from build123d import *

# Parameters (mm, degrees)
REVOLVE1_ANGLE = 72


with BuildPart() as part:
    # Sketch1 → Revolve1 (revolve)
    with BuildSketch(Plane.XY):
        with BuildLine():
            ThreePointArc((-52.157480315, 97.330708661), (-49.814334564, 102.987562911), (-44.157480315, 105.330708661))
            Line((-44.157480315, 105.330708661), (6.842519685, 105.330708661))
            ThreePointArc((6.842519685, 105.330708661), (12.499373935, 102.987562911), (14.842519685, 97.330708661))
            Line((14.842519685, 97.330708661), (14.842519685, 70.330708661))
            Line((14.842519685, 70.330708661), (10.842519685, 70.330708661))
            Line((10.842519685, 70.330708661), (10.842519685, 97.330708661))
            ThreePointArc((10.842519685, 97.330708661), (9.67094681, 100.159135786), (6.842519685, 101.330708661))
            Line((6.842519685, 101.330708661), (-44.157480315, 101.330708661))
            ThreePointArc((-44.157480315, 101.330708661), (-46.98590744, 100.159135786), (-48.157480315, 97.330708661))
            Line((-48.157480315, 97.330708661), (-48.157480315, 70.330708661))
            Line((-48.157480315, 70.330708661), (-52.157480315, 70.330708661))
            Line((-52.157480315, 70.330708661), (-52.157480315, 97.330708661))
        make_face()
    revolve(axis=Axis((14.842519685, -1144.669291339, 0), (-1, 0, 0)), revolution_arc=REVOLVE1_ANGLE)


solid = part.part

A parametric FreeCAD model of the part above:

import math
import FreeCAD as App
import Part
import Sketcher

doc = App.newDocument("Part")
body = doc.addObject("PartDesign::Body", "Body")

# Sketch on XY plane
sketch1 = body.newObject("Sketcher::SketchObject", "Sketch")
sketch1.AttachmentSupport = (doc.getObject("XY_Plane"), [""])
sketch1.MapMode = "FlatFace"
sketch1.addGeometry(Part.ArcOfCircle(Part.Circle(App.Vector(-44.2, 97.3, 0), App.Vector(0, 0, 1), 8), math.radians(90), math.radians(180)), False)
sketch1.addGeometry(Part.LineSegment(App.Vector(-52.2, 97.3, 0), App.Vector(-52.2, 70.3, 0)), False)
sketch1.addGeometry(Part.LineSegment(App.Vector(-52.2, 70.3, 0), App.Vector(-48.2, 70.3, 0)), False)
sketch1.addGeometry(Part.LineSegment(App.Vector(-48.2, 70.3, 0), App.Vector(-48.2, 97.3, 0)), False)
sketch1.addGeometry(Part.ArcOfCircle(Part.Circle(App.Vector(-44.2, 97.3, 0), App.Vector(0, 0, 1), 4), math.radians(90), math.radians(180)), False)
sketch1.addGeometry(Part.LineSegment(App.Vector(-44.2, 101.3, 0), App.Vector(6.8, 101.3, 0)), False)
sketch1.addGeometry(Part.ArcOfCircle(Part.Circle(App.Vector(6.8, 97.3, 0), App.Vector(0, 0, 1), 4), math.radians(0), math.radians(90)), False)
sketch1.addGeometry(Part.LineSegment(App.Vector(10.8, 97.3, 0), App.Vector(10.8, 70.3, 0)), False)
sketch1.addGeometry(Part.LineSegment(App.Vector(10.8, 70.3, 0), App.Vector(14.8, 70.3, 0)), False)
sketch1.addGeometry(Part.LineSegment(App.Vector(14.8, 70.3, 0), App.Vector(14.8, 97.3, 0)), False)
sketch1.addGeometry(Part.ArcOfCircle(Part.Circle(App.Vector(6.8, 97.3, 0), App.Vector(0, 0, 1), 8), math.radians(0), math.radians(90)), False)
sketch1.addGeometry(Part.LineSegment(App.Vector(6.8, 105.3, 0), App.Vector(-44.2, 105.3, 0)), False)
sketch1.addGeometry(Part.LineSegment(App.Vector(14.8, -1144.7, 0), App.Vector(-52.2, -1144.7, 0)), True)  # axis
sketch1.addConstraint(Sketcher.Constraint("Tangent", 0, 2, 1, 1))
sketch1.addConstraint(Sketcher.Constraint("Coincident", 1, 2, 2, 1))
sketch1.addConstraint(Sketcher.Constraint("Coincident", 2, 2, 3, 1))
sketch1.addConstraint(Sketcher.Constraint("Tangent", 3, 2, 4, 2))
sketch1.addConstraint(Sketcher.Constraint("Tangent", 4, 1, 5, 1))
sketch1.addConstraint(Sketcher.Constraint("Tangent", 5, 2, 6, 2))
sketch1.addConstraint(Sketcher.Constraint("Tangent", 6, 1, 7, 1))
sketch1.addConstraint(Sketcher.Constraint("Coincident", 7, 2, 8, 1))
sketch1.addConstraint(Sketcher.Constraint("Coincident", 8, 2, 9, 1))
sketch1.addConstraint(Sketcher.Constraint("Tangent", 9, 2, 10, 1))
sketch1.addConstraint(Sketcher.Constraint("Tangent", 10, 2, 11, 1))
sketch1.addConstraint(Sketcher.Constraint("Tangent", 11, 2, 0, 1))
sketch1.addConstraint(Sketcher.Constraint("Vertical", 1))
sketch1.addConstraint(Sketcher.Constraint("Horizontal", 2))
sketch1.addConstraint(Sketcher.Constraint("Vertical", 3))
sketch1.addConstraint(Sketcher.Constraint("Horizontal", 5))
sketch1.addConstraint(Sketcher.Constraint("Vertical", 7))
sketch1.addConstraint(Sketcher.Constraint("Horizontal", 8))
sketch1.addConstraint(Sketcher.Constraint("Vertical", 9))
sketch1.addConstraint(Sketcher.Constraint("Horizontal", 11))
sketch1.addConstraint(Sketcher.Constraint("Horizontal", 12))
sketch1.addConstraint(Sketcher.Constraint("Coincident", 4, 3, 0, 3))
sketch1.addConstraint(Sketcher.Constraint("Coincident", 10, 3, 6, 3))
sketch1.addConstraint(Sketcher.Constraint("Equal", 4, 6))
sketch1.addConstraint(Sketcher.Constraint("Horizontal", 2, 2, 7, 2))
sketch1.addConstraint(Sketcher.Constraint("Vertical", 9, 2, 12, 1))
sketch1.addConstraint(Sketcher.Constraint("Vertical", 1, 2, 12, 2))
sketch1.addConstraint(Sketcher.Constraint("Radius", 0, 8.0))
sketch1.addConstraint(Sketcher.Constraint("Radius", 4, 4.0))
sketch1.addConstraint(Sketcher.Constraint("DistanceX", 5, 1, 5, 2, 51.0))
sketch1.addConstraint(Sketcher.Constraint("DistanceY", 1, 2, 1, 1, 27.0))
sketch1.addConstraint(Sketcher.Constraint("DistanceY", 12, 1, 8, 2, 1215.0))
sketch1.addConstraint(Sketcher.Constraint("DistanceX", 0, 3, -1, 1, 44.15748))
sketch1.addConstraint(Sketcher.Constraint("DistanceY", -1, 1, 0, 3, 97.330709))
revolution = body.newObject("PartDesign::Revolution", "Revolution")
revolution.Profile = sketch1
revolution.ReferenceAxis = (sketch1, ["Axis0"])
revolution.Angle = 72

doc.recompute()
